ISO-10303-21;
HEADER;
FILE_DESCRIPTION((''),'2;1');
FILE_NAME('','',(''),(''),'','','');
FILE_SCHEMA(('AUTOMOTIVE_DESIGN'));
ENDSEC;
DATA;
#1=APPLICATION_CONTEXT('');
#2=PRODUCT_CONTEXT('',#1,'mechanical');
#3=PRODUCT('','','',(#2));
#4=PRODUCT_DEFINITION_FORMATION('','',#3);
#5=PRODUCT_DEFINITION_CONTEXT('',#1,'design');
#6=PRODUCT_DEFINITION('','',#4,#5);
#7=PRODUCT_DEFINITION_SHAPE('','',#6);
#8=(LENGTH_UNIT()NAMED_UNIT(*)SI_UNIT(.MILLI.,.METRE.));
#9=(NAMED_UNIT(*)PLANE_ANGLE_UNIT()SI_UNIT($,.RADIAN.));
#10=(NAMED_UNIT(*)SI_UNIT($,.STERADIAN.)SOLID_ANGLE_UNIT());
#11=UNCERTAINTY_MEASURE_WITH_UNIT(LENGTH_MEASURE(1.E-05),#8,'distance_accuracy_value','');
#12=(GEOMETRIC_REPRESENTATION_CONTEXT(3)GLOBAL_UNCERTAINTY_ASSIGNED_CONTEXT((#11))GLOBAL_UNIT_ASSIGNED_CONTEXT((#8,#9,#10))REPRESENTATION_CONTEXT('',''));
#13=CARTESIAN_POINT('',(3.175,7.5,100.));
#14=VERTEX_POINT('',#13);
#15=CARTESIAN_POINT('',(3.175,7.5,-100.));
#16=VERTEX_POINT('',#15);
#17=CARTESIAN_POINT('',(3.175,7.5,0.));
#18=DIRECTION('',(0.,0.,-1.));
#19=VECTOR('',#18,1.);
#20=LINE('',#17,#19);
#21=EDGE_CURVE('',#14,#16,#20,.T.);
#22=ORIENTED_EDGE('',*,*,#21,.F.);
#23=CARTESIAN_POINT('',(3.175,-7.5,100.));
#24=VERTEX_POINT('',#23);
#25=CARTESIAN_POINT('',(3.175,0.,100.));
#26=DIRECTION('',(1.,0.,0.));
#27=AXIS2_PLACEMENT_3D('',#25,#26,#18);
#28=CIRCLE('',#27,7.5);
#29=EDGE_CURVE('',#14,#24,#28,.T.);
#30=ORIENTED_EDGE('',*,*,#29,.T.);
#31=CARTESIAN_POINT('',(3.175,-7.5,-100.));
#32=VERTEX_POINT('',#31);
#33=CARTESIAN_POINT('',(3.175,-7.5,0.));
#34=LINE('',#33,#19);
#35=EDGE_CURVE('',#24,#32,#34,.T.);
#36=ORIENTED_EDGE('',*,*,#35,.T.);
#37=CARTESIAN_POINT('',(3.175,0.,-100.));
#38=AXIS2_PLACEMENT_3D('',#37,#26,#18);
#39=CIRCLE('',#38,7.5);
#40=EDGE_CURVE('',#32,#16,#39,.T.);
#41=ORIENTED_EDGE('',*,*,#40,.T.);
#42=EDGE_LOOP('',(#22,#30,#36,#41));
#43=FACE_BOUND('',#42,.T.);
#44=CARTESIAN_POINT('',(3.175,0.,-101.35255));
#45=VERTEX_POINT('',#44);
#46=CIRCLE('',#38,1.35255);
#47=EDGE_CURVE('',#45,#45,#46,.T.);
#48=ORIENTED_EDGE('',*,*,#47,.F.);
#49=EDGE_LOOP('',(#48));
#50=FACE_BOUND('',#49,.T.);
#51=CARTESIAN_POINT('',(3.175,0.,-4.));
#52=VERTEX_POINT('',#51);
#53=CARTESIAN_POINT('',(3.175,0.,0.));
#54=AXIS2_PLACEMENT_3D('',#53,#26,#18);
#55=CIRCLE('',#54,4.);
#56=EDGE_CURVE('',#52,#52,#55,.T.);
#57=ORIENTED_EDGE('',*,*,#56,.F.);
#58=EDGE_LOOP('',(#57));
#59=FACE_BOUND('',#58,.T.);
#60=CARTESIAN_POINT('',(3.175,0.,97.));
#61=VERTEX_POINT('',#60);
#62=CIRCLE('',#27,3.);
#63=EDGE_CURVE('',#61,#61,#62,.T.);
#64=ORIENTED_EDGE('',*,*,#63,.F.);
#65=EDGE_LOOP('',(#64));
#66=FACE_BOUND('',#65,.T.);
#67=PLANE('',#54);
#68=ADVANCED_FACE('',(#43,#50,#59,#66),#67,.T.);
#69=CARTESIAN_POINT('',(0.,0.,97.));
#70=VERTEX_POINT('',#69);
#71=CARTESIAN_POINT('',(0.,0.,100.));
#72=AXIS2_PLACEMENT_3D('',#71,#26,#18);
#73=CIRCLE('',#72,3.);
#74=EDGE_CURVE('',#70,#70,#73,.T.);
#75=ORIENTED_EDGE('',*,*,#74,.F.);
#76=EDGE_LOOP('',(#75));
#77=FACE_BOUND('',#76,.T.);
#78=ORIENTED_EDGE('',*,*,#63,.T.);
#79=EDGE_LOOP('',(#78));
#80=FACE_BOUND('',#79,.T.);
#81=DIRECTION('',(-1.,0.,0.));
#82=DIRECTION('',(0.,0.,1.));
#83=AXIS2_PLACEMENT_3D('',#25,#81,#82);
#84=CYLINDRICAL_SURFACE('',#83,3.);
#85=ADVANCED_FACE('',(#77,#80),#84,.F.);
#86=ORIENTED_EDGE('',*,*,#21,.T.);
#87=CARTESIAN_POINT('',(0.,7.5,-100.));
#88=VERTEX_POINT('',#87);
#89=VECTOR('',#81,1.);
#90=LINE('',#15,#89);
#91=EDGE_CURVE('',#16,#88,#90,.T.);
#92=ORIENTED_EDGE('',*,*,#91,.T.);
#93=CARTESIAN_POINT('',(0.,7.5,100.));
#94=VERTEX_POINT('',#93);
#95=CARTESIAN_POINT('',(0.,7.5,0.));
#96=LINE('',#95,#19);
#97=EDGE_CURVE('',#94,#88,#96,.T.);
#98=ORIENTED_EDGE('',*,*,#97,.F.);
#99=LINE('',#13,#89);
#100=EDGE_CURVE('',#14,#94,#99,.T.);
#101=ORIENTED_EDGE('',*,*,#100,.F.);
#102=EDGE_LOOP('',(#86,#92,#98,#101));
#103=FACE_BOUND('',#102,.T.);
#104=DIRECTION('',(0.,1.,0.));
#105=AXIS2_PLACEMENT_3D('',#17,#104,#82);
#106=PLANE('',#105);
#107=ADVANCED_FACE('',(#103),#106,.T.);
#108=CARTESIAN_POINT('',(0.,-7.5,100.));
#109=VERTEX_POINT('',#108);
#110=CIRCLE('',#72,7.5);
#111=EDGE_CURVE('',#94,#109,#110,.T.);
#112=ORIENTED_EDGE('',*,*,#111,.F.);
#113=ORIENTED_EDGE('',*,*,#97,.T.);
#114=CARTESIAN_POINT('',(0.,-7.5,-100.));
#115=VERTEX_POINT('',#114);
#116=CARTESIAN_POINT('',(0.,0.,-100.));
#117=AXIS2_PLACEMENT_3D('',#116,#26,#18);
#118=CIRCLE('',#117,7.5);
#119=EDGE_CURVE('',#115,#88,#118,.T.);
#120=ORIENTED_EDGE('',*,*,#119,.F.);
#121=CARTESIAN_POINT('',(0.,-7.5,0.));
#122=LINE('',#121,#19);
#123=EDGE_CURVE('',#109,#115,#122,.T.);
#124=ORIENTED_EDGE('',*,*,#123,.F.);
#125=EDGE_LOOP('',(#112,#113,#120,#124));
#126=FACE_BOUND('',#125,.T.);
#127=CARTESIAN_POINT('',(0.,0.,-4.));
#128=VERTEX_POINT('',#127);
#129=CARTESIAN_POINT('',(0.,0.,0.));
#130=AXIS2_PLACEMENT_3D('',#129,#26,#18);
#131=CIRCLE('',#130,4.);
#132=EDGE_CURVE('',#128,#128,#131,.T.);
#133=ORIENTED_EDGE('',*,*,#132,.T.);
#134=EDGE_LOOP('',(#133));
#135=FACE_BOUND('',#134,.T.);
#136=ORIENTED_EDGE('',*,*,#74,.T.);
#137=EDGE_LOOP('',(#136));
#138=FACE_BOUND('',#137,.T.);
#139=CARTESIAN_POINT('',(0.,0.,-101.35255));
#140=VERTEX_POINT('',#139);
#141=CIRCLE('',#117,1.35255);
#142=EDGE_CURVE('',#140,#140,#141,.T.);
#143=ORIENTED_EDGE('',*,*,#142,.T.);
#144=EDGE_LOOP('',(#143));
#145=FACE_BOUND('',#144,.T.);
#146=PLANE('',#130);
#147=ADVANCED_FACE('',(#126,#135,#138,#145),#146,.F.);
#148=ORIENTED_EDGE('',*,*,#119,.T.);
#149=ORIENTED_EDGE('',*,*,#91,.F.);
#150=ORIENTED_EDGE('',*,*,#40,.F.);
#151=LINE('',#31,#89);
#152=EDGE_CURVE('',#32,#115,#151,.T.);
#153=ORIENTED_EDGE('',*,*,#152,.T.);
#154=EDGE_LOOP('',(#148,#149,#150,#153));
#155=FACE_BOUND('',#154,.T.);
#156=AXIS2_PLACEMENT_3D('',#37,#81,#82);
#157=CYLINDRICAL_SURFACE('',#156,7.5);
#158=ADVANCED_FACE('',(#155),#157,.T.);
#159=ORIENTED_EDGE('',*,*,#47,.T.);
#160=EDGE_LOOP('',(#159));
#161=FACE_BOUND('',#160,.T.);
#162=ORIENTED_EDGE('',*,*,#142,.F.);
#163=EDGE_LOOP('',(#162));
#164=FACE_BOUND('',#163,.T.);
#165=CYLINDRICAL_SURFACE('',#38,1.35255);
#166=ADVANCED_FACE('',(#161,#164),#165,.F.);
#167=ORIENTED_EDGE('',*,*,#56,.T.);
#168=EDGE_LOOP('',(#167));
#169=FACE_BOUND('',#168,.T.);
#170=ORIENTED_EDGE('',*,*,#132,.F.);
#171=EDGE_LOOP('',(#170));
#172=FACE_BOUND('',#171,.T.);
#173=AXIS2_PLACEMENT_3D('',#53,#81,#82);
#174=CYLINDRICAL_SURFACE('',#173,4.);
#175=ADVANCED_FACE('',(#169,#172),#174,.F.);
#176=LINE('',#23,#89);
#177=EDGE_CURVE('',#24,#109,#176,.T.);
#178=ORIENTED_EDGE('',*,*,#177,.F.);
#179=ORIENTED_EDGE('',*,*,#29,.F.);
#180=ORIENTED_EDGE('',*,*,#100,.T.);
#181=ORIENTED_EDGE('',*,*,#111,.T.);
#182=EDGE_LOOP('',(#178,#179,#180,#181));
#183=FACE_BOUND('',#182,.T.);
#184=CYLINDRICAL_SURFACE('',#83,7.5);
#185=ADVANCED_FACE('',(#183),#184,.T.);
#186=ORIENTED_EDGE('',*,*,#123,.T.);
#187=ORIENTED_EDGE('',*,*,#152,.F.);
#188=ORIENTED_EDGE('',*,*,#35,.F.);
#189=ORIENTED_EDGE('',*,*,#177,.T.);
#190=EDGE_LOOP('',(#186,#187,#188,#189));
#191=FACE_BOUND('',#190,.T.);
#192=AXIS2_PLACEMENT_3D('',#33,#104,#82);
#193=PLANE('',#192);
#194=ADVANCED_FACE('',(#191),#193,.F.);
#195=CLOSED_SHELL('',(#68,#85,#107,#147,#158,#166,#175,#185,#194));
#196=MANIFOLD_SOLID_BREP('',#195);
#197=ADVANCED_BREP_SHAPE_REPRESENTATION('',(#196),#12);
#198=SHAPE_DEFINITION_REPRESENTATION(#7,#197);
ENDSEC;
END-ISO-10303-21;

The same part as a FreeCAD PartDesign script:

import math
import FreeCAD as App
import Part
import Sketcher
from FreeCAD import Vector
Q = App.Units.Quantity

doc = App.newDocument("Part")
params = doc.addObject("Spreadsheet::Sheet", "Params")
for row, (alias, value) in enumerate([
    ("sketch1_diameter", "8 mm"),
    ("sketch1_diameter2", "6 mm"),
    ("sketch1_radius", "7.5 mm"),
    ("sketch1_height", "200 mm"),
    ("pad1_length", "3.175 mm"),
    ("hole_diameter", "2.7051 mm"),
], start=1):
    params.set(f"A{row}", alias)
    params.set(f"B{row}", "=" + value)
    params.setAlias(f"B{row}", alias)

body = doc.addObject("PartDesign::Body", "Body")

sketch1 = body.newObject("Sketcher::SketchObject", "Sketch")
sketch1.AttachmentSupport = (doc.getObject("YZ_Plane"), [""])
sketch1.MapMode = "FlatFace"
sketch1.addGeometry(Part.LineSegment(Vector(7.5, -100, 0), Vector(7.5, 100, 0)), False)
sketch1.addGeometry(Part.ArcOfCircle(Part.Circle(Vector(0, 100, 0), Vector(0, 0, 1), 7.5), math.radians(0), math.radians(180)), False)
sketch1.addGeometry(Part.LineSegment(Vector(-7.5, 100, 0), Vector(-7.5, -100, 0)), False)
sketch1.addGeometry(Part.ArcOfCircle(Part.Circle(Vector(0, -100, 0), Vector(0, 0, 1), 7.5), math.radians(180), math.radians(360)), False)
sketch1.addGeometry(Part.Circle(Vector(0, 0, 0), Vector(0, 0, 1), 4), False)
sketch1.addGeometry(Part.Circle(Vector(0, 100, 0), Vector(0, 0, 1), 3), False)
sketch1.addConstraint(Sketcher.Constraint("Tangent", 0, 2, 1, 1))
sketch1.addConstraint(Sketcher.Constraint("Tangent", 1, 2, 2, 1))
sketch1.addConstraint(Sketcher.Constraint("Tangent", 2, 2, 3, 1))
sketch1.addConstraint(Sketcher.Constraint("Tangent", 3, 2, 0, 1))
sketch1.addConstraint(Sketcher.Constraint("Vertical", 0))
sketch1.addConstraint(Sketcher.Constraint("Vertical", 2))
sketch1.addConstraint(Sketcher.Constraint("Coincident", 4, 3, -1, 1))
sketch1.addConstraint(Sketcher.Constraint("Coincident", 5, 3, 1, 3))
sketch1.addConstraint(Sketcher.Constraint("Symmetric", 1, 3, 3, 3, -1, 1))
sketch1.addConstraint(Sketcher.Constraint("Diameter", 4, Q("8 mm")))
sketch1.addConstraint(Sketcher.Constraint("Diameter", 5, Q("6 mm")))
sketch1.addConstraint(Sketcher.Constraint("Radius", 1, Q("7.5 mm")))
sketch1.addConstraint(Sketcher.Constraint("DistanceY", 0, 1, 0, 2, Q("200 mm")))
sketch1.setExpression("Constraints[9]", "Params.sketch1_diameter")
sketch1.setExpression("Constraints[10]", "Params.sketch1_diameter2")
sketch1.setExpression("Constraints[11]", "Params.sketch1_radius")
sketch1.setExpression("Constraints[12]", "Params.sketch1_height")
pad1 = body.newObject("PartDesign::Pad", "Pad")
pad1.Profile = sketch1
pad1.setExpression("Length", "Params.pad1_length")

sketch2 = body.newObject("Sketcher::SketchObject", "Sketch001")
sketch2.AttachmentSupport = (doc.getObject("YZ_Plane"), [""])
sketch2.MapMode = "FlatFace"
sketch2.AttachmentOffset = App.Placement(Vector(0, 0, 3.175), App.Rotation())
sketch2.addGeometry(Part.Circle(Vector(0, -100, 0), Vector(0, 0, 1), 1.35255), False)
sketch2.addConstraint(Sketcher.Constraint("PointOnObject", 0, 3, -2))
sketch2.addConstraint(Sketcher.Constraint("DistanceY", 0, 3, -1, 1, Q("100 mm")))
sketch2.addConstraint(Sketcher.Constraint("Diameter", 0, Q("2.7051 mm")))
doc.recompute()
hole = body.newObject("PartDesign::Hole", "Hole")
hole.Profile = sketch2
hole.ThreadType = "None"
hole.setExpression("Diameter", "Params.hole_diameter")
hole.DepthType = "ThroughAll"

doc.recompute()
